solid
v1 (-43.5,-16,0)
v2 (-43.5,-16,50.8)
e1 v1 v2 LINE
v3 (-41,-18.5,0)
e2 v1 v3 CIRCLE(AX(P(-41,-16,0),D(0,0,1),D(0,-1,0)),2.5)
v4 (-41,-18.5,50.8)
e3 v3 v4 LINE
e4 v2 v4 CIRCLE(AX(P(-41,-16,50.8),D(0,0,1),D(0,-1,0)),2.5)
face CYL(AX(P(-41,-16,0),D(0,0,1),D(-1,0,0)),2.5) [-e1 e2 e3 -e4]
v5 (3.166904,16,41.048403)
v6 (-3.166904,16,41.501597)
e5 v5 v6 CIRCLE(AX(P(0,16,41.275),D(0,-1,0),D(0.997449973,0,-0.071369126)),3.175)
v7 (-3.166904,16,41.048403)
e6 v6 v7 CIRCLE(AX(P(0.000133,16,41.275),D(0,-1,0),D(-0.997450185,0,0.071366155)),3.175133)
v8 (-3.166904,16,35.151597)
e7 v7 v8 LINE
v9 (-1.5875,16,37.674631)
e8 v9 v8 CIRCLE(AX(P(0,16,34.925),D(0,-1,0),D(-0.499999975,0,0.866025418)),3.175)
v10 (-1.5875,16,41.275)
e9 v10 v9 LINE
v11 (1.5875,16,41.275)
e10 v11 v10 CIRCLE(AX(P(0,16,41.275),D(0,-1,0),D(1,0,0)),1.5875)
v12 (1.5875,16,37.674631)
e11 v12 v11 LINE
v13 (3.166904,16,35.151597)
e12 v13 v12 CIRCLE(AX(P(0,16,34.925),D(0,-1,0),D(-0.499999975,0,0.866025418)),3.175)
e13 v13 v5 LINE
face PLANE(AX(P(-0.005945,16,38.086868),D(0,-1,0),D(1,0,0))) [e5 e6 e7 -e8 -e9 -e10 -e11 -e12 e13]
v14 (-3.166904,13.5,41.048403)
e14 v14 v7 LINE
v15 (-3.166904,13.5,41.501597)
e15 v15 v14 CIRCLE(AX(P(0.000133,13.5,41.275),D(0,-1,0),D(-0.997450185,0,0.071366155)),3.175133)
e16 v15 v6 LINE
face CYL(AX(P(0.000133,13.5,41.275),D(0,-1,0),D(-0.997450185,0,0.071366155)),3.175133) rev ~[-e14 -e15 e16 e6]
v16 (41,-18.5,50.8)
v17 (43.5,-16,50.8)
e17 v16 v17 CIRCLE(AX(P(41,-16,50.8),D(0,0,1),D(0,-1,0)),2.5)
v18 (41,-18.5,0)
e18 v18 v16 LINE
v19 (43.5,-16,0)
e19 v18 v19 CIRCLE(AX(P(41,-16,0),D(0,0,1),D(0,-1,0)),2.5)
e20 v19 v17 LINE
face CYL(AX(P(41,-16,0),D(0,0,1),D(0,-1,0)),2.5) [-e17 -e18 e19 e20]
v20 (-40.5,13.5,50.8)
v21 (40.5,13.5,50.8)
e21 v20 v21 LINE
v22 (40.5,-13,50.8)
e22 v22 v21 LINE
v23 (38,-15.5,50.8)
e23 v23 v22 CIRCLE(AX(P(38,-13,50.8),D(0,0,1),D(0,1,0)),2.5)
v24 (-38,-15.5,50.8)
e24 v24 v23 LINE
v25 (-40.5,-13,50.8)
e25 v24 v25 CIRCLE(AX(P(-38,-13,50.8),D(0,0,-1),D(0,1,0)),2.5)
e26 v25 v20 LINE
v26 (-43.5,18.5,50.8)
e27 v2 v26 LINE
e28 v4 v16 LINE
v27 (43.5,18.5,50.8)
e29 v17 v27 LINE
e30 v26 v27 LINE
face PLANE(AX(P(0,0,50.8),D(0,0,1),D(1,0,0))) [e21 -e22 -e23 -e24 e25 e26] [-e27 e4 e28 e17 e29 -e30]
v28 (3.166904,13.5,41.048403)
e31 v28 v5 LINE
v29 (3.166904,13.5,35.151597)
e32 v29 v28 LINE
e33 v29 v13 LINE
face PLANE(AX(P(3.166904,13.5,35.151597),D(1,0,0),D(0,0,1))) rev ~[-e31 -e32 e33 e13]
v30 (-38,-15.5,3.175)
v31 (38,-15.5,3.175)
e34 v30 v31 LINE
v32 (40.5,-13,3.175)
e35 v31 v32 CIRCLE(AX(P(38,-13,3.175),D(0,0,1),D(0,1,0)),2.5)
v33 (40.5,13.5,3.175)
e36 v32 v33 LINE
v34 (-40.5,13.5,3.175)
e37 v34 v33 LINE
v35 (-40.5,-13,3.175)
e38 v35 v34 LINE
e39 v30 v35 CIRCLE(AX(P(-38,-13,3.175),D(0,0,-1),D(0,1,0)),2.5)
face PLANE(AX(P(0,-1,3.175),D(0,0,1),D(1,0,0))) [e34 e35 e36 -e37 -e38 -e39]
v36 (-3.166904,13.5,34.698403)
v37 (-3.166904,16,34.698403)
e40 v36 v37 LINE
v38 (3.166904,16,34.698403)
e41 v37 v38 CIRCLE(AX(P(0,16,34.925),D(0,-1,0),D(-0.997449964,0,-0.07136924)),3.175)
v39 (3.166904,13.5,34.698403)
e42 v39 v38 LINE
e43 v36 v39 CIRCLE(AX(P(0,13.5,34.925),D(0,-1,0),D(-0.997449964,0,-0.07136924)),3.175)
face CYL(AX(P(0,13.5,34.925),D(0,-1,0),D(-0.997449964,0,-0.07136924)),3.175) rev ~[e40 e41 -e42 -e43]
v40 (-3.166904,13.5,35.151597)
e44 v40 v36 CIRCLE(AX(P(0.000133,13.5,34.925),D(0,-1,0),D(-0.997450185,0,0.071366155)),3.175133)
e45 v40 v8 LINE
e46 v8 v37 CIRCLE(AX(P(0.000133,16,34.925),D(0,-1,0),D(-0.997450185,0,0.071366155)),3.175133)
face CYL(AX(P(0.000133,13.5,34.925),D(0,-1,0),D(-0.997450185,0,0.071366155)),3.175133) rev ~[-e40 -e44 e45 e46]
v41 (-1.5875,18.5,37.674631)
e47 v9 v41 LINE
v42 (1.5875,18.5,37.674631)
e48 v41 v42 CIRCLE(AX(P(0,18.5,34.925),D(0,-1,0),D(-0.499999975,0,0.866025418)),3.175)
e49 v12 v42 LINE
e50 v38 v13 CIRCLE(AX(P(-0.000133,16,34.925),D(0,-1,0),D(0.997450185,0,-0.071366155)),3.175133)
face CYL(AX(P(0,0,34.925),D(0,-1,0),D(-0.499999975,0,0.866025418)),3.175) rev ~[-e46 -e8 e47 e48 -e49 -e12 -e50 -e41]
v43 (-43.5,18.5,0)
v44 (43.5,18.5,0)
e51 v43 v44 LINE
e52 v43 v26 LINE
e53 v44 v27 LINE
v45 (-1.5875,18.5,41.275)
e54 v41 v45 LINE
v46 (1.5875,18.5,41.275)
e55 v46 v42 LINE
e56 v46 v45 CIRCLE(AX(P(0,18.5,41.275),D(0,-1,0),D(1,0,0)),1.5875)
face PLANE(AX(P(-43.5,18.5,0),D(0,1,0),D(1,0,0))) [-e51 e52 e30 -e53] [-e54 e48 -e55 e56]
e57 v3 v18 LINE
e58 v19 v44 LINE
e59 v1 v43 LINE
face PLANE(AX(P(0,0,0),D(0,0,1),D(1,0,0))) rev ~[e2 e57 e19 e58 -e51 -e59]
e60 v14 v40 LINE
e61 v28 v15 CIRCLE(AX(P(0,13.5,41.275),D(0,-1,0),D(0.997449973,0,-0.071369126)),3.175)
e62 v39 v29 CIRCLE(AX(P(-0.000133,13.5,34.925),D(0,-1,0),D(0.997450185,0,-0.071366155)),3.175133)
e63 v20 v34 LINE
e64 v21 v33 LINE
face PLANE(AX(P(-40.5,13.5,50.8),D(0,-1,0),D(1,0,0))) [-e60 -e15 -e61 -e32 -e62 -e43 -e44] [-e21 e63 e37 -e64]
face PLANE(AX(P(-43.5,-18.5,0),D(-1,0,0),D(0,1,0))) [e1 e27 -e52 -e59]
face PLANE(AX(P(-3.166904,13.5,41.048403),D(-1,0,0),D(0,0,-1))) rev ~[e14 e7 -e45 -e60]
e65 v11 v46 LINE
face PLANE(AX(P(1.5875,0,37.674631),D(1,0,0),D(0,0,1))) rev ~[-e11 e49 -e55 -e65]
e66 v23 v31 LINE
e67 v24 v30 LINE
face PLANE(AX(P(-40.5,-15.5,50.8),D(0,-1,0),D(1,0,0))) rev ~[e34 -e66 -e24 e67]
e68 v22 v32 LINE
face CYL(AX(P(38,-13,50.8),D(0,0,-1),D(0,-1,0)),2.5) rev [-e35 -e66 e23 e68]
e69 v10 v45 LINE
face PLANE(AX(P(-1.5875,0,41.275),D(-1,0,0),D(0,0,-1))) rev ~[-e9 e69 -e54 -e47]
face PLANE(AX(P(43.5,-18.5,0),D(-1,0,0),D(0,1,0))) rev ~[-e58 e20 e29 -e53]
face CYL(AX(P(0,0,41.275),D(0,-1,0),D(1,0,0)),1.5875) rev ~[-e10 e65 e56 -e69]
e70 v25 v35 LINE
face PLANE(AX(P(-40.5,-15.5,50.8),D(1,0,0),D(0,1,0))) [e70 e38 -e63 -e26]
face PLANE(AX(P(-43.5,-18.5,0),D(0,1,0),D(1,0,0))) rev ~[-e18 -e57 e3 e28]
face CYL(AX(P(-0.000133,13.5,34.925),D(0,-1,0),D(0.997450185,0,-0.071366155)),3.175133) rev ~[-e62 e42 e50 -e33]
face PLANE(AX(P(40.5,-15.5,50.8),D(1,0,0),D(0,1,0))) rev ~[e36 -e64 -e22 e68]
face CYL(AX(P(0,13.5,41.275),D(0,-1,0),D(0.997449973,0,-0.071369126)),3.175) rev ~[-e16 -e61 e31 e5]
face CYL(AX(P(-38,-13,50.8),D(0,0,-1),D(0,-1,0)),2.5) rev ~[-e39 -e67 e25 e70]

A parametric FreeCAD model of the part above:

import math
import FreeCAD as App
import Part
import Sketcher

V = App.Vector
Q = App.Units.Quantity


def edges_at(feature, points):
    """Names of the edges that pass closest to the given points."""
    edges = feature.Shape.Edges
    near = lambda p: min(range(len(edges)), key=lambda i: edges[i].distToShape(Part.Vertex(*p))[0])
    return sorted({f"Edge{near(p) + 1}" for p in points})

doc = App.newDocument("Part")
params = doc.addObject("Spreadsheet::Sheet", "Params")
for row, (alias, value) in enumerate([
    ("pad1_length", "2 in"),
    ("pocket1_length", "1.875 in"),
    ("fillet_radius", "2.5 mm"),
    ("sketch3_radius", "0.125 in"),
    ("pocket2_length", "2.5 mm"),
    ("sketch4_radius", "0.125 in"),
    ("sketch4_radius2", "0.0625 in"),
    ("pocket3_length", "1 in"),
], start=1):
    params.set(f"A{row}", alias)
    params.set(f"B{row}", "=" + value)
    params.setAlias(f"B{row}", alias)

body = doc.addObject("PartDesign::Body", "Body")

# Sketch on XY plane
sketch1 = body.newObject("Sketcher::SketchObject", "Sketch")
sketch1.AttachmentSupport = (doc.getObject("XY_Plane"), [""])
sketch1.MapMode = "FlatFace"
sketch1.addGeometry(Part.LineSegment(V(-44, 18, 0), V(-44, -18, 0)), False)
sketch1.addGeometry(Part.LineSegment(V(-44, -18, 0), V(44, -18, 0)), False)
sketch1.addGeometry(Part.LineSegment(V(44, -18, 0), V(44, 18, 0)), False)
sketch1.addGeometry(Part.LineSegment(V(44, 18, 0), V(-44, 18, 0)), False)
sketch1.addConstraint(Sketcher.Constraint("Coincident", 0, 2, 1, 1))
sketch1.addConstraint(Sketcher.Constraint("Coincident", 1, 2, 2, 1))
sketch1.addConstraint(Sketcher.Constraint("Coincident", 2, 2, 3, 1))
sketch1.addConstraint(Sketcher.Constraint("Coincident", 3, 2, 0, 1))
sketch1.addConstraint(Sketcher.Constraint("Vertical", 0))
sketch1.addConstraint(Sketcher.Constraint("Horizontal", 1))
sketch1.addConstraint(Sketcher.Constraint("Vertical", 2))
sketch1.addConstraint(Sketcher.Constraint("Horizontal", 3))
sketch1.addConstraint(Sketcher.Constraint("Symmetric", 0, 2, 2, 2, -1, 1))
sketch1.addConstraint(Sketcher.Constraint("DistanceX", 1, 1, 1, 2, Q("87 mm")))
sketch1.addConstraint(Sketcher.Constraint("DistanceY", 0, 2, 0, 1, Q("37 mm")))
pad1 = body.newObject("PartDesign::Pad", "Pad")
pad1.Profile = sketch1
pad1.setExpression("Length", "Params.pad1_length")

# Sketch on XY plane
sketch2 = body.newObject("Sketcher::SketchObject", "Sketch001")
sketch2.AttachmentSupport = (doc.getObject("XY_Plane"), [""])
sketch2.MapMode = "FlatFace"
sketch2.AttachmentOffset = App.Placement(V(0, 0, 2 * 25.4), App.Rotation())
sketch2.addGeometry(Part.LineSegment(V(-40, 14, 0), V(-40, -16, 0)), False)
sketch2.addGeometry(Part.LineSegment(V(-40, -16, 0), V(40, -16, 0)), False)
sketch2.addGeometry(Part.LineSegment(V(40, -16, 0), V(40, 14, 0)), False)
sketch2.addGeometry(Part.LineSegment(V(40, 14, 0), V(-40, 14, 0)), False)
sketch2.addConstraint(Sketcher.Constraint("Coincident", 0, 2, 1, 1))
sketch2.addConstraint(Sketcher.Constraint("Coincident", 1, 2, 2, 1))
sketch2.addConstraint(Sketcher.Constraint("Coincident", 2, 2, 3, 1))
sketch2.addConstraint(Sketcher.Constraint("Coincident", 3, 2, 0, 1))
sketch2.addConstraint(Sketcher.Constraint("Vertical", 0))
sketch2.addConstraint(Sketcher.Constraint("Horizontal", 1))
sketch2.addConstraint(Sketcher.Constraint("Vertical", 2))
sketch2.addConstraint(Sketcher.Constraint("Horizontal", 3))
sketch2.addConstraint(Sketcher.Constraint("DistanceX", 1, 1, 1, 2, Q("81 mm")))
sketch2.addConstraint(Sketcher.Constraint("DistanceY", 0, 2, 0, 1, Q("29 mm")))
sketch2.addConstraint(Sketcher.Constraint("DistanceX", 0, 2, -1, 1, Q("40.5 mm")))
sketch2.addConstraint(Sketcher.Constraint("DistanceY", 0, 2, -1, 1, Q("15.5 mm")))
pocket1 = body.newObject("PartDesign::Pocket", "Pocket")
pocket1.Profile = sketch2
pocket1.setExpression("Length", "Params.pocket1_length")
doc.recompute()

fillet = body.newObject("PartDesign::Fillet", "Fillet")
fillet.Base = (pocket1, edges_at(pocket1, [
    (43.5, -18.5, 25.4),
    (-43.5, -18.5, 25.4),
    (-40.5, -15.5, 26.988),
    (40.5, -15.5, 26.988),
]))
fillet.setExpression("Radius", "Params.fillet_radius")

# Sketch on XZ plane
sketch3 = body.newObject("Sketcher::SketchObject", "Sketch002")
sketch3.AttachmentSupport = (doc.getObject("XZ_Plane"), [""])
sketch3.MapMode = "FlatFace"
sketch3.AttachmentOffset = App.Placement(V(0, 0, -13.5), App.Rotation())
sketch3.addGeometry(Part.ArcOfCircle(Part.Circle(V(0, 41.27, 0), V(0, 0, 1), 3.18), math.radians(-4), math.radians(176)), False)
sketch3.addGeometry(Part.ArcOfCircle(Part.Circle(V(0, 41.27, 0), V(0, 0, 1), 3.18), math.radians(175.91), math.radians(184.09)), False)
sketch3.addGeometry(Part.LineSegment(V(-3.17, 41.05, 0), V(-3.17, 35.15, 0)), False)
sketch3.addGeometry(Part.ArcOfCircle(Part.Circle(V(0, 34.92, 0), V(0, 0, 1), 3.18), math.radians(175.91), math.radians(184.09)), False)
sketch3.addGeometry(Part.ArcOfCircle(Part.Circle(V(0, 34.93, 0), V(0, 0, 1), 3.18), math.radians(-176), math.radians(-4)), False)
sketch3.addGeometry(Part.ArcOfCircle(Part.Circle(V(0, 34.92, 0), V(0, 0, 1), 3.18), math.radians(-4.09), math.radians(4.09)), False)
sketch3.addGeometry(Part.LineSegment(V(3.17, 35.15, 0), V(3.17, 41.05, 0)), False)
sketch3.addConstraint(Sketcher.Constraint("Coincident", 0, 2, 1, 1))
sketch3.addConstraint(Sketcher.Constraint("Coincident", 1, 2, 2, 1))
sketch3.addConstraint(Sketcher.Constraint("Coincident", 2, 2, 3, 1))
sketch3.addConstraint(Sketcher.Constraint("Coincident", 3, 2, 4, 1))
sketch3.addConstraint(Sketcher.Constraint("Coincident", 4, 2, 5, 1))
sketch3.addConstraint(Sketcher.Constraint("Coincident", 5, 2, 6, 1))
sketch3.addConstraint(Sketcher.Constraint("Coincident", 6, 2, 0, 1))
sketch3.addConstraint(Sketcher.Constraint("Vertical", 2))
sketch3.addConstraint(Sketcher.Constraint("Vertical", 6))
sketch3.addConstraint(Sketcher.Constraint("Equal", 1, 3))
sketch3.addConstraint(Sketcher.Constraint("Equal", 0, 4))
sketch3.addConstraint(Sketcher.Constraint("Equal", 3, 5))
sketch3.addConstraint(Sketcher.Constraint("Symmetric", 3, 3, 5, 3, -2))
sketch3.addConstraint(Sketcher.Constraint("Symmetric", 1, 2, 6, 2, -2))
sketch3.addConstraint(Sketcher.Constraint("PointOnObject", 0, 3, -2))
sketch3.addConstraint(Sketcher.Constraint("Horizontal", 3, 3, 4, 3))
sketch3.addConstraint(Sketcher.Constraint("Horizontal", 3, 2, 4, 2))
sketch3.addConstraint(Sketcher.Constraint("Vertical", 0, 2, 1, 2))
sketch3.addConstraint(Sketcher.Constraint("Vertical", 2, 2, 3, 2))
sketch3.addConstraint(Sketcher.Constraint("Radius", 0, Q("0.125 in")))
sketch3.addConstraint(Sketcher.Constraint("DistanceY", 3, 3, 1, 3, Q("0.25 in")))
sketch3.addConstraint(Sketcher.Constraint("DistanceY", -1, 1, 0, 3, Q("1.625 in")))
sketch3.addConstraint(Sketcher.Constraint("Radius", 1, Q("3.175133 mm")))
sketch3.addConstraint(Sketcher.Constraint("DistanceY", 2, 2, 2, 1, Q("5.896806 mm")))
sketch3.setExpression("Constraints[19]", "Params.sketch3_radius")
pocket2 = body.newObject("PartDesign::Pocket", "Pocket001")
pocket2.Profile = sketch3
pocket2.setExpression("Length", "Params.pocket2_length")

# Sketch on XZ plane
sketch4 = body.newObject("Sketcher::SketchObject", "Sketch003")
sketch4.AttachmentSupport = (doc.getObject("XZ_Plane"), [""])
sketch4.MapMode = "FlatFace"
sketch4.addGeometry(Part.LineSegment(V(-1.6, 41.3, 0), V(-1.6, 37.7, 0)), False)
sketch4.addGeometry(Part.ArcOfCircle(Part.Circle(V(0, 34.9, 0), V(0, 0, 1), 3.2), math.radians(120), math.radians(420)), False)
sketch4.addGeometry(Part.LineSegment(V(1.6, 37.7, 0), V(1.6, 41.3, 0)), False)
sketch4.addGeometry(Part.ArcOfCircle(Part.Circle(V(0, 41.3, 0), V(0, 0, 1), 1.6), math.radians(0), math.radians(180)), False)
sketch4.addConstraint(Sketcher.Constraint("Coincident", 0, 2, 1, 1))
sketch4.addConstraint(Sketcher.Constraint("Coincident", 1, 2, 2, 1))
sketch4.addConstraint(Sketcher.Constraint("Tangent", 2, 2, 3, 1))
sketch4.addConstraint(Sketcher.Constraint("Tangent", 3, 2, 0, 1))
sketch4.addConstraint(Sketcher.Constraint("Vertical", 0))
sketch4.addConstraint(Sketcher.Constraint("Vertical", 2))
sketch4.addConstraint(Sketcher.Constraint("Symmetric", 0, 2, 1, 2, -2))
sketch4.addConstraint(Sketcher.Constraint("Radius", 1, Q("0.125 in")))
sketch4.addConstraint(Sketcher.Constraint("Radius", 3, Q("0.0625 in")))
sketch4.addConstraint(Sketcher.Constraint("DistanceY", 1, 3, 3, 3, Q("0.25 in")))
sketch4.addConstraint(Sketcher.Constraint("DistanceY", -1, 1, 1, 3, Q("1.375 in")))
sketch4.setExpression("Constraints[7]", "Params.sketch4_radius")
sketch4.setExpression("Constraints[8]", "Params.sketch4_radius2")
pocket3 = body.newObject("PartDesign::Pocket", "Pocket002")
pocket3.Profile = sketch4
pocket3.setExpression("Length", "Params.pocket3_length")

doc.recompute()
